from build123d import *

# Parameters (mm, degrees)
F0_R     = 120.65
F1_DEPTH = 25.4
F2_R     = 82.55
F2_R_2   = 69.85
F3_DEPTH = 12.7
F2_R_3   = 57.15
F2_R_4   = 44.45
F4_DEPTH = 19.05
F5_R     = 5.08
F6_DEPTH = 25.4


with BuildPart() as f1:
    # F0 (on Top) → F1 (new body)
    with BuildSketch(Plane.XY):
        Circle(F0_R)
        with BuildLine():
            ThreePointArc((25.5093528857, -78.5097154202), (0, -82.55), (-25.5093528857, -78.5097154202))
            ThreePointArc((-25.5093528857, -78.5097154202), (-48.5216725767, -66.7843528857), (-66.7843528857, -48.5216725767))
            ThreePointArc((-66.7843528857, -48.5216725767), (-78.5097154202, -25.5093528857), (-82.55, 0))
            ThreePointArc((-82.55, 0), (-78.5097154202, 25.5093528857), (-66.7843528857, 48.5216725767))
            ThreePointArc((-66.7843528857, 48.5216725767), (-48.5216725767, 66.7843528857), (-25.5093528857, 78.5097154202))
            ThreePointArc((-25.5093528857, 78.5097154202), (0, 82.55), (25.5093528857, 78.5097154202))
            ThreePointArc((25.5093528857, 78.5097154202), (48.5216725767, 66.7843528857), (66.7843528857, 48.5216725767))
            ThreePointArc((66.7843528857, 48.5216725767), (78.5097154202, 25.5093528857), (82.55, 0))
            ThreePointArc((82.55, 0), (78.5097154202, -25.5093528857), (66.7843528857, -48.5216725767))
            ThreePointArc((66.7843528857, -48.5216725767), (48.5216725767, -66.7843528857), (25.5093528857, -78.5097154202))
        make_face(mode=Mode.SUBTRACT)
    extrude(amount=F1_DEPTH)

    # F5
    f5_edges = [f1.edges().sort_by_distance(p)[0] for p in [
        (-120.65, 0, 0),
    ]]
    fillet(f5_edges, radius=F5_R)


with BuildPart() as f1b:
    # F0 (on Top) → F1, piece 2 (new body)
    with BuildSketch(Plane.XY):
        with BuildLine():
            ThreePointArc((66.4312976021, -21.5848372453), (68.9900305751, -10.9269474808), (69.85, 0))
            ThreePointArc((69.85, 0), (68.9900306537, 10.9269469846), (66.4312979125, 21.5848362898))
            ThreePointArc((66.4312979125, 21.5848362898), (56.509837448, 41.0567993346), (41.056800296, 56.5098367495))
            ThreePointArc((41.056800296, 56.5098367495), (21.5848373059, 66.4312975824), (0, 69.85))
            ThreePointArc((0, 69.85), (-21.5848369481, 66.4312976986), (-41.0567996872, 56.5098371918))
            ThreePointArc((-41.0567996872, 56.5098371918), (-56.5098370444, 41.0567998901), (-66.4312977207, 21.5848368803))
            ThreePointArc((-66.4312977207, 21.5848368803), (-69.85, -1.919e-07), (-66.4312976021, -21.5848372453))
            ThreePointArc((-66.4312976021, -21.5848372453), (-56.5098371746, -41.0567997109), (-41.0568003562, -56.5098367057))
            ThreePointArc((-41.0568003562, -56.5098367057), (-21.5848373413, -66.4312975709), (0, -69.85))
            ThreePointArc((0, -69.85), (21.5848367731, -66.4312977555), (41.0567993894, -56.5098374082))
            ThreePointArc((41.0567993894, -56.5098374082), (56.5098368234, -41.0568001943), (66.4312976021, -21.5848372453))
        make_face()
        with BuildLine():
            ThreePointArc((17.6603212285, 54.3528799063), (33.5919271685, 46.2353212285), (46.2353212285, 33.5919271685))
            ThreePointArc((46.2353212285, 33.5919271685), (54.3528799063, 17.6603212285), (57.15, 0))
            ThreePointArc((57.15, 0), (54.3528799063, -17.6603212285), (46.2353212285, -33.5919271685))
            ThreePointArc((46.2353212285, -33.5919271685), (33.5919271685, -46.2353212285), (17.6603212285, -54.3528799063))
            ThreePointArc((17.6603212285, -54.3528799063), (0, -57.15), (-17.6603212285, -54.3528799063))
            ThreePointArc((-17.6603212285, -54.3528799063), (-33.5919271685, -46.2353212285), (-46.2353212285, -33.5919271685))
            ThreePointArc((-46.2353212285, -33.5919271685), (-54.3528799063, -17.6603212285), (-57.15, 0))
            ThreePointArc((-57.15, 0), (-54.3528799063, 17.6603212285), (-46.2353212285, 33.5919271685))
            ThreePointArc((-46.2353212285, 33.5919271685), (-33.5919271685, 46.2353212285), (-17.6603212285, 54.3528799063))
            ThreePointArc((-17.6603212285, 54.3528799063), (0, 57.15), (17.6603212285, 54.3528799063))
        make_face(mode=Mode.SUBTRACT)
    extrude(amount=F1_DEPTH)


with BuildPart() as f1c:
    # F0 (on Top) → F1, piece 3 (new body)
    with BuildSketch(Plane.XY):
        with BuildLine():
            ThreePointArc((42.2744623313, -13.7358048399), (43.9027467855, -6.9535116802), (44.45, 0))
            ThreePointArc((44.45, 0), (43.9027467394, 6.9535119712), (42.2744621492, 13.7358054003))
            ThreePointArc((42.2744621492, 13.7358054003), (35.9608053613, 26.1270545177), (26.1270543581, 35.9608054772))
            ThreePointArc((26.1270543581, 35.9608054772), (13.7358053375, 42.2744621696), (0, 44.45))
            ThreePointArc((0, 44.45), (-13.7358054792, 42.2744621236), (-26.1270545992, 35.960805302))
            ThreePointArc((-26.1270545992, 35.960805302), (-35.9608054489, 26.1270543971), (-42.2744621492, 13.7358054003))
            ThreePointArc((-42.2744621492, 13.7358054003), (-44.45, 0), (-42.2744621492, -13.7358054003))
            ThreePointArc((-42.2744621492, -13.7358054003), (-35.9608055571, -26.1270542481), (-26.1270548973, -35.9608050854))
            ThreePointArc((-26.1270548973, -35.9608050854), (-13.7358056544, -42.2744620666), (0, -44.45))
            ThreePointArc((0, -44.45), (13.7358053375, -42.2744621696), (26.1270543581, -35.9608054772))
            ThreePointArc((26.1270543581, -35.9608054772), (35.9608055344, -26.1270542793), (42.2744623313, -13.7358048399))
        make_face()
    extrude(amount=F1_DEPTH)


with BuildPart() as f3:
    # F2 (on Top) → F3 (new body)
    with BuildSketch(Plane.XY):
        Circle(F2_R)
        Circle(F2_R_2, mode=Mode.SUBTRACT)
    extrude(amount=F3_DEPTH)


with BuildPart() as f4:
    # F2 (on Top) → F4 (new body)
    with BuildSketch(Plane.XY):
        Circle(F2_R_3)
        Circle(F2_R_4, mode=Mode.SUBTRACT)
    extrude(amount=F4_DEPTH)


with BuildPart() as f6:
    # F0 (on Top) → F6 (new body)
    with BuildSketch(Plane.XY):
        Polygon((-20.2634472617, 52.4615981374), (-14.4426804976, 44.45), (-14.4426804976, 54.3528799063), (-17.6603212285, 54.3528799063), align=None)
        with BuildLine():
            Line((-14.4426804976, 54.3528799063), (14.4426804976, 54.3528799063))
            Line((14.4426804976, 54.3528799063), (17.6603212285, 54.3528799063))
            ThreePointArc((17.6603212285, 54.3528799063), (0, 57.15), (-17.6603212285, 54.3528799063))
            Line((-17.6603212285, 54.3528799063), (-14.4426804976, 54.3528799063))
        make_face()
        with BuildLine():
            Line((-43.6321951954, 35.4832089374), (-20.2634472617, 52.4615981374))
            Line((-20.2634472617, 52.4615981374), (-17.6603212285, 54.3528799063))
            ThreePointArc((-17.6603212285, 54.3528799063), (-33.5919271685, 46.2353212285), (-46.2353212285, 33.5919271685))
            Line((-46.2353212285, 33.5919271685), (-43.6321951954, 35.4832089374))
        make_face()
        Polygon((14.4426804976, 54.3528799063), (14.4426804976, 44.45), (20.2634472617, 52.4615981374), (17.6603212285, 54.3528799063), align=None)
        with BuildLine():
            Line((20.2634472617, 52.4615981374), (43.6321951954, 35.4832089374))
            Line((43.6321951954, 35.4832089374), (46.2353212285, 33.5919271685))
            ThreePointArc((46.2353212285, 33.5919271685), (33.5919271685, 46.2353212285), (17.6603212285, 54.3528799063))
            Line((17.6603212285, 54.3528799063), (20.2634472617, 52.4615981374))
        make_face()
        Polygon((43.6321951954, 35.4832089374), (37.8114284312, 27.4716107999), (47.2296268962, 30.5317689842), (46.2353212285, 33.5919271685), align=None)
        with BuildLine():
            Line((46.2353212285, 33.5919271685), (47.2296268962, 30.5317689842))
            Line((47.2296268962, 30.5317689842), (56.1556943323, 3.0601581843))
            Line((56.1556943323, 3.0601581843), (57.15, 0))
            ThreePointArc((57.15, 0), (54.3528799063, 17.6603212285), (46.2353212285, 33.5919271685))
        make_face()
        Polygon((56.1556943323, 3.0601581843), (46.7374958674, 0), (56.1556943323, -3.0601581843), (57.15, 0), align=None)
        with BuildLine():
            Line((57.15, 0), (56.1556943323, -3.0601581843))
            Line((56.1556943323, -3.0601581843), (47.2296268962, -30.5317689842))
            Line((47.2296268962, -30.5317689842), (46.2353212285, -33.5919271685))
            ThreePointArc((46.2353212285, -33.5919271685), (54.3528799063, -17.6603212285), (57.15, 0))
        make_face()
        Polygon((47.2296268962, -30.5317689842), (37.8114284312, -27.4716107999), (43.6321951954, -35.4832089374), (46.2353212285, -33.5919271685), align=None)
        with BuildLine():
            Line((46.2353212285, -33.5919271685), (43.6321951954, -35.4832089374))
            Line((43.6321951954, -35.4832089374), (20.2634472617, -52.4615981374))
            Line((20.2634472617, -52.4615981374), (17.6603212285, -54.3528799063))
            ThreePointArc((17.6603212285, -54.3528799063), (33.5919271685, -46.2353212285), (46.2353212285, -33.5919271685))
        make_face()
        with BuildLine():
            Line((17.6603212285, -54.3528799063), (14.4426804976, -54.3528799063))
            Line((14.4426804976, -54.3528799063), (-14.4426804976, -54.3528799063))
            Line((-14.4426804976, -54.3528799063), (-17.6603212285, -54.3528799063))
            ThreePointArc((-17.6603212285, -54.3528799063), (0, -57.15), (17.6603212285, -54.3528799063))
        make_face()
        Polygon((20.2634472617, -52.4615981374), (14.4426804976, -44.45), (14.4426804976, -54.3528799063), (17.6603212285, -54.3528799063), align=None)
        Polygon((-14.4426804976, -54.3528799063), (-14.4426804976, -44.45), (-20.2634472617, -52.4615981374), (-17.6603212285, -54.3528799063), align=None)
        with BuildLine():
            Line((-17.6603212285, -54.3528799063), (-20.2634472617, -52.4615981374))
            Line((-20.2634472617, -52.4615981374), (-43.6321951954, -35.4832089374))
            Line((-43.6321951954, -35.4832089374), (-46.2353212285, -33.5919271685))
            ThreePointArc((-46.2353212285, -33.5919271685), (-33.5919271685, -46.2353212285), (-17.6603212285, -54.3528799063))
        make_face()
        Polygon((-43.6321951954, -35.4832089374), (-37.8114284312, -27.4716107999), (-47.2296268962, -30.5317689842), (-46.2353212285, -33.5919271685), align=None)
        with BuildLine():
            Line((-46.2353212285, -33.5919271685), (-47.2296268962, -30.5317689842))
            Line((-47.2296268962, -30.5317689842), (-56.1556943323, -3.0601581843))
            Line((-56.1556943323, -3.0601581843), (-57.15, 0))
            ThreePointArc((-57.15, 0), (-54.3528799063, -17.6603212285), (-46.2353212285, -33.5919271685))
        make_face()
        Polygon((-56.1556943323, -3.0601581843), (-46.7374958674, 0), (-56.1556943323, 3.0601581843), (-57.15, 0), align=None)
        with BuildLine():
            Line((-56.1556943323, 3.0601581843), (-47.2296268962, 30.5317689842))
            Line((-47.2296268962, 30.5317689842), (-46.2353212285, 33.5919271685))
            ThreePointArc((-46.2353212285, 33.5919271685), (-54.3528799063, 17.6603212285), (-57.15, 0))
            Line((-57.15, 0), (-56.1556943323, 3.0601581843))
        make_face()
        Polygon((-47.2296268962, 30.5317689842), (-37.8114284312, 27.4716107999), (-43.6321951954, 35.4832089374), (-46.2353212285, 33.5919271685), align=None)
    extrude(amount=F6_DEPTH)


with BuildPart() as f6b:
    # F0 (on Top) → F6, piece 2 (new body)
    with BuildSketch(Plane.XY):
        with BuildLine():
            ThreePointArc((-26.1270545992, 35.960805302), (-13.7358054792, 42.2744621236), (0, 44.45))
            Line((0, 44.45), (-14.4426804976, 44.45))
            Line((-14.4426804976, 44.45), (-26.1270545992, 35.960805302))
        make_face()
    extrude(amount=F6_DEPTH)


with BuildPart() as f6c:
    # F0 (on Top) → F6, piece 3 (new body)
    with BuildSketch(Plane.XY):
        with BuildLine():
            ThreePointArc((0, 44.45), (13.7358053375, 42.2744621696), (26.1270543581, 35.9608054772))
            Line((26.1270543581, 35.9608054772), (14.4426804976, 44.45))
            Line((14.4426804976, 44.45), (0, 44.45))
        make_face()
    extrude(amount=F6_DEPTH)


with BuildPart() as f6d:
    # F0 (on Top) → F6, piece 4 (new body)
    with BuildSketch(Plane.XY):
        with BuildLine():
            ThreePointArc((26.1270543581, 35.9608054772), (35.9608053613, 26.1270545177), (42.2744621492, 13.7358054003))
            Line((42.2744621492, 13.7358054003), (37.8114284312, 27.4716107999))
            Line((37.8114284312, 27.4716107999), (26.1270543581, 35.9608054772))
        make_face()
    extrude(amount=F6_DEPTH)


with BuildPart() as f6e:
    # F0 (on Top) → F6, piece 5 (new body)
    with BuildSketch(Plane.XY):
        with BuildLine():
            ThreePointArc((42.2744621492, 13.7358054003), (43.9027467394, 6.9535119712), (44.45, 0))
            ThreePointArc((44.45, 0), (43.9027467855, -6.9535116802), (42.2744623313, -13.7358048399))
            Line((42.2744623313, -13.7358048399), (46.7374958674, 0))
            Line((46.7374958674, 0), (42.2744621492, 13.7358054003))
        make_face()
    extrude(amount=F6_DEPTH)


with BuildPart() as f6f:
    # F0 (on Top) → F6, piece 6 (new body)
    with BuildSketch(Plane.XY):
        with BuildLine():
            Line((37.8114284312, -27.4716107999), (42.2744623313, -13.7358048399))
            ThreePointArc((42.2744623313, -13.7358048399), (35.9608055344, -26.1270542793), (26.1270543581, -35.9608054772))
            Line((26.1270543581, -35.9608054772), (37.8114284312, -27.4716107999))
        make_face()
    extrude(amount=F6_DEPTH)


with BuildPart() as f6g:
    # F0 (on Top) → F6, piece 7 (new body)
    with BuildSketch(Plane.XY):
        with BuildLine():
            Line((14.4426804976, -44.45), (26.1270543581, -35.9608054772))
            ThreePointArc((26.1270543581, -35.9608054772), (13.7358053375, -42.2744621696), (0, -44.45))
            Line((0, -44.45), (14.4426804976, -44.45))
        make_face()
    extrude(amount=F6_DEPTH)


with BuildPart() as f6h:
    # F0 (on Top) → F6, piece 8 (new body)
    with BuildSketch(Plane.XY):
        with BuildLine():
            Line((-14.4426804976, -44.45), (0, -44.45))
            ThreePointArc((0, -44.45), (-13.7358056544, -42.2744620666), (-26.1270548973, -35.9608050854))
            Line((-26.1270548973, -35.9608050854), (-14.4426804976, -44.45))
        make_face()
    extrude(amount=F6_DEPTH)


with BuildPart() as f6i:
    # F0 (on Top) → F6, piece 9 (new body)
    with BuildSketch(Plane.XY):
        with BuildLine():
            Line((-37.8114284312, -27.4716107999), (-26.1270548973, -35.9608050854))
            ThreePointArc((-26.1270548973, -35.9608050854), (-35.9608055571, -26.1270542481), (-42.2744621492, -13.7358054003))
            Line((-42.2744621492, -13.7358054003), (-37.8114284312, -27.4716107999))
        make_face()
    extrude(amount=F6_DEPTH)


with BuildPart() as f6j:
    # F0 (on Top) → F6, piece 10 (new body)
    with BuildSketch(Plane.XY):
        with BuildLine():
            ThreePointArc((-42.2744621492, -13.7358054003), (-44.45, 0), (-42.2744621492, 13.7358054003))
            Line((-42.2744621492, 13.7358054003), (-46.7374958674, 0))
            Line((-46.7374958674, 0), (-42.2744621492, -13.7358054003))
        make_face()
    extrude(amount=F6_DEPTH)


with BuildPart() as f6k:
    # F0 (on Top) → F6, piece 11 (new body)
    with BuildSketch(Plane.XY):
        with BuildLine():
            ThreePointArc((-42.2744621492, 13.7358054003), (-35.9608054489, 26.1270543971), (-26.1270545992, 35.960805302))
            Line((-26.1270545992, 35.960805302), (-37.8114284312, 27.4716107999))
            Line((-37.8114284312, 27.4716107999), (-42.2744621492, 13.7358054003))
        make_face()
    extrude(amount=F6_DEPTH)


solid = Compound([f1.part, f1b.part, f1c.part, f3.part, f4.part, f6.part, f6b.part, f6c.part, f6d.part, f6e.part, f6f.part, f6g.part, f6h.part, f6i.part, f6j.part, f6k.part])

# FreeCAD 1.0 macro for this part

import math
import FreeCAD as App
import Part
import Sketcher
from FreeCAD import Vector
Q = App.Units.Quantity


def edges_at(feature, points):
    """Names of the edges that pass closest to the given points."""
    edges = feature.Shape.Edges
    near = lambda p: min(range(len(edges)), key=lambda i: edges[i].distToShape(Part.Vertex(*p))[0])
    return sorted({f"Edge{near(p) + 1}" for p in points})


def add_polygon(sketch, points):
    """Adds a closed chain of lines whose ends are joined by coincident constraints."""
    first, n = sketch.GeometryCount, len(points)
    for a, b in zip(points, points[1:] + points[:1]):
        sketch.addGeometry(Part.LineSegment(App.Vector(*a, 0), App.Vector(*b, 0)), False)
    for i in range(n):
        sketch.addConstraint(Sketcher.Constraint("Coincident", first + i, 2, first + (i + 1) % n, 1))

doc = App.newDocument("Part")
params = doc.addObject("Spreadsheet::Sheet", "Params")
for row, (alias, value) in enumerate([
    ("sketch1_diameter", "9.5 in"),
    ("sketch1_radius", "3.25 in"),
    ("pad1_length", "1 in"),
    ("fillet_radius", "0.2 in"),
    ("sketch2_radius", "2.75 in"),
    ("sketch2_radius2", "2.25 in"),
    ("pad2_length", "1 in"),
    ("sketch3_radius", "1.75 in"),
    ("pad3_length", "1 in"),
    ("sketch4_diameter", "6.5 in"),
    ("sketch4_diameter2", "5.5 in"),
    ("pad4_length", "0.5 in"),
    ("sketch5_diameter", "4.5 in"),
    ("sketch5_diameter2", "3.5 in"),
    ("pad5_length", "0.75 in"),
    ("sketch6_radius", "2.25 in"),
    ("pad6_length", "1 in"),
    ("sketch7_radius", "1.75 in"),
    ("pad7_length", "1 in"),
    ("sketch8_radius", "1.75 in"),
    ("pad8_length", "1 in"),
    ("sketch9_radius", "1.75 in"),
    ("pad9_length", "1 in"),
    ("sketch10_radius", "1.75 in"),
    ("pad10_length", "1 in"),
    ("sketch11_radius", "1.75 in"),
    ("pad11_length", "1 in"),
    ("sketch12_radius", "1.75 in"),
    ("pad12_length", "1 in"),
    ("sketch13_radius", "1.75 in"),
    ("pad13_length", "1 in"),
    ("sketch14_radius", "1.75 in"),
    ("pad14_length", "1 in"),
    ("sketch15_radius", "1.75 in"),
    ("pad15_length", "1 in"),
    ("sketch16_radius", "1.75 in"),
    ("pad16_length", "1 in"),
], start=1):
    params.set(f"A{row}", alias)
    params.set(f"B{row}", "=" + value)
    params.setAlias(f"B{row}", alias)

body = doc.addObject("PartDesign::Body", "Body")

# Sketch on XY plane
sketch1 = doc.addObject("Sketcher::SketchObject", "Sketch")
body.addObject(sketch1)
sketch1.AttachmentSupport = (doc.XY_Plane, [""])
sketch1.MapMode = "FlatFace"
sketch1.addGeometry(Part.Circle(Vector(0, 0, 0), Vector(0, 0, 1), 121), False)
sketch1.addGeometry(Part.ArcOfCircle(Part.Circle(Vector(0, 0, 0), Vector(0, 0, 1), 83), math.radians(-72), math.radians(-36)), False)
sketch1.addGeometry(Part.ArcOfCircle(Part.Circle(Vector(0, 0, 0), Vector(0, 0, 1), 83), math.radians(-108), math.radians(-72)), False)
sketch1.addGeometry(Part.ArcOfCircle(Part.Circle(Vector(0, 0, 0), Vector(0, 0, 1), 83), math.radians(-144), math.radians(-108)), False)
sketch1.addGeometry(Part.ArcOfCircle(Part.Circle(Vector(0, 0, 0), Vector(0, 0, 1), 83), math.radians(180), math.radians(216)), False)
sketch1.addGeometry(Part.ArcOfCircle(Part.Circle(Vector(0, 0, 0), Vector(0, 0, 1), 83), math.radians(144), math.radians(180)), False)
sketch1.addGeometry(Part.ArcOfCircle(Part.Circle(Vector(0, 0, 0), Vector(0, 0, 1), 83), math.radians(108), math.radians(144)), False)
sketch1.addGeometry(Part.ArcOfCircle(Part.Circle(Vector(0, 0, 0), Vector(0, 0, 1), 83), math.radians(72), math.radians(108)), False)
sketch1.addGeometry(Part.ArcOfCircle(Part.Circle(Vector(0, 0, 0), Vector(0, 0, 1), 83), math.radians(36), math.radians(72)), False)
sketch1.addGeometry(Part.ArcOfCircle(Part.Circle(Vector(0, 0, 0), Vector(0, 0, 1), 83), math.radians(0), math.radians(36)), False)
sketch1.addGeometry(Part.ArcOfCircle(Part.Circle(Vector(0, 0, 0), Vector(0, 0, 1), 83), math.radians(-36), math.radians(0)), False)
sketch1.addConstraint(Sketcher.Constraint("Tangent", 1, 1, 2, 2))
sketch1.addConstraint(Sketcher.Constraint("Tangent", 2, 1, 3, 2))
sketch1.addConstraint(Sketcher.Constraint("Tangent", 3, 1, 4, 2))
sketch1.addConstraint(Sketcher.Constraint("Tangent", 4, 1, 5, 2))
sketch1.addConstraint(Sketcher.Constraint("Tangent", 5, 1, 6, 2))
sketch1.addConstraint(Sketcher.Constraint("Tangent", 6, 1, 7, 2))
sketch1.addConstraint(Sketcher.Constraint("Tangent", 7, 1, 8, 2))
sketch1.addConstraint(Sketcher.Constraint("Tangent", 8, 1, 9, 2))
sketch1.addConstraint(Sketcher.Constraint("Tangent", 9, 1, 10, 2))
sketch1.addConstraint(Sketcher.Constraint("Tangent", 10, 1, 1, 2))
sketch1.addConstraint(Sketcher.Constraint("Coincident", 0, 3, -1, 1))
sketch1.addConstraint(Sketcher.Constraint("Coincident", 1, 3, -1, 1))
sketch1.addConstraint(Sketcher.Constraint("Coincident", 3, 3, -1, 1))
sketch1.addConstraint(Sketcher.Constraint("Coincident", 5, 3, -1, 1))
sketch1.addConstraint(Sketcher.Constraint("Coincident", 7, 3, -1, 1))
sketch1.addConstraint(Sketcher.Constraint("Equal", 7, 8))
sketch1.addConstraint(Sketcher.Constraint("PointOnObject", 4, 1, -1))
sketch1.addConstraint(Sketcher.Constraint("PointOnObject", 9, 1, -1))
sketch1.addConstraint(Sketcher.Constraint("Horizontal", 1, 1, 2, 1))
sketch1.addConstraint(Sketcher.Constraint("Horizontal", 6, 1, 7, 1))
sketch1.addConstraint(Sketcher.Constraint("Horizontal", 5, 1, 8, 1))
sketch1.addConstraint(Sketcher.Constraint("Horizontal", 3, 1, 10, 1))
sketch1.addConstraint(Sketcher.Constraint("Vertical", 3, 1, 5, 1))
sketch1.addConstraint(Sketcher.Constraint("Vertical", 2, 1, 6, 1))
sketch1.addConstraint(Sketcher.Constraint("Diameter", 0, Q("9.5 in")))
sketch1.addConstraint(Sketcher.Constraint("Radius", 1, Q("3.25 in")))
sketch1.addConstraint(Sketcher.Constraint("DistanceX", 3, 1, 2, 1, Q("1.625 in")))
sketch1.addConstraint(Sketcher.Constraint("DistanceX", -1, 1, 1, 1, Q("25.509353 mm")))
sketch1.setExpression("Constraints[24]", "Params.sketch1_diameter")
sketch1.setExpression("Constraints[25]", "Params.sketch1_radius")
pad1 = doc.addObject("PartDesign::Pad", "Pad")
body.addObject(pad1)
pad1.Profile = sketch1
pad1.setExpression("Length", "Params.pad1_length")
doc.recompute()

fillet = doc.addObject("PartDesign::Fillet", "Fillet")
body.addObject(fillet)
fillet.Base = (pad1, edges_at(pad1, [(-120.65, 0, 0)]))
fillet.setExpression("Radius", "Params.fillet_radius")
body2 = doc.addObject("PartDesign::Body", "Body001")

# Sketch on XY plane
sketch2 = doc.addObject("Sketcher::SketchObject", "Sketch001")
body2.addObject(sketch2)
sketch2.AttachmentSupport = (doc.getObject("XY_Plane001"), [""])
sketch2.MapMode = "FlatFace"
sketch2.addGeometry(Part.ArcOfCircle(Part.Circle(Vector(0, 0, 0), Vector(0, 0, 1), 70), math.radians(-18), math.radians(0)), False)
sketch2.addGeometry(Part.ArcOfCircle(Part.Circle(Vector(0, 0, 0), Vector(0, 0, 1), 70), math.radians(0), math.radians(18)), False)
sketch2.addGeometry(Part.ArcOfCircle(Part.Circle(Vector(0, 0, 0), Vector(0, 0, 1), 70), math.radians(18), math.radians(54)), False)
sketch2.addGeometry(Part.ArcOfCircle(Part.Circle(Vector(0, 0, 0), Vector(0, 0, 1), 70), math.radians(54), math.radians(126)), False)
sketch2.addGeometry(Part.ArcOfCircle(Part.Circle(Vector(0, 0, 0), Vector(0, 0, 1), 70), math.radians(126), math.radians(162)), False)
sketch2.addGeometry(Part.ArcOfCircle(Part.Circle(Vector(0, 0, 0), Vector(0, 0, 1), 70), math.radians(162), math.radians(198)), False)
sketch2.addGeometry(Part.ArcOfCircle(Part.Circle(Vector(0, 0, 0), Vector(0, 0, 1), 70), math.radians(-162), math.radians(-126)), False)
sketch2.addGeometry(Part.ArcOfCircle(Part.Circle(Vector(0, 0, 0), Vector(0, 0, 1), 70), math.radians(-126), math.radians(-90)), False)
sketch2.addGeometry(Part.ArcOfCircle(Part.Circle(Vector(0, 0, 0), Vector(0, 0, 1), 70), math.radians(-90), math.radians(-54)), False)
sketch2.addGeometry(Part.ArcOfCircle(Part.Circle(Vector(0, 0, 0), Vector(0, 0, 1), 70), math.radians(-54), math.radians(-18)), False)
sketch2.addGeometry(Part.ArcOfCircle(Part.Circle(Vector(0, 0, 0), Vector(0, 0, 1), 57), math.radians(72), math.radians(108)), False)
sketch2.addGeometry(Part.ArcOfCircle(Part.Circle(Vector(0, 0, 0), Vector(0, 0, 1), 57), math.radians(36), math.radians(72)), False)
sketch2.addGeometry(Part.ArcOfCircle(Part.Circle(Vector(0, 0, 0), Vector(0, 0, 1), 57), math.radians(0), math.radians(36)), False)
sketch2.addGeometry(Part.ArcOfCircle(Part.Circle(Vector(0, 0, 0), Vector(0, 0, 1), 57), math.radians(-36), math.radians(0)), False)
sketch2.addGeometry(Part.ArcOfCircle(Part.Circle(Vector(0, 0, 0), Vector(0, 0, 1), 57), math.radians(-72), math.radians(-36)), False)
sketch2.addGeometry(Part.ArcOfCircle(Part.Circle(Vector(0, 0, 0), Vector(0, 0, 1), 57), math.radians(-108), math.radians(-72)), False)
sketch2.addGeometry(Part.ArcOfCircle(Part.Circle(Vector(0, 0, 0), Vector(0, 0, 1), 57), math.radians(-144), math.radians(-108)), False)
sketch2.addGeometry(Part.ArcOfCircle(Part.Circle(Vector(0, 0, 0), Vector(0, 0, 1), 57), math.radians(180), math.radians(216)), False)
sketch2.addGeometry(Part.ArcOfCircle(Part.Circle(Vector(0, 0, 0), Vector(0, 0, 1), 57), math.radians(144), math.radians(180)), False)
sketch2.addGeometry(Part.ArcOfCircle(Part.Circle(Vector(0, 0, 0), Vector(0, 0, 1), 57), math.radians(108), math.radians(144)), False)
sketch2.addConstraint(Sketcher.Constraint("Tangent", 0, 2, 1, 1))
sketch2.addConstraint(Sketcher.Constraint("Tangent", 1, 2, 2, 1))
sketch2.addConstraint(Sketcher.Constraint("Tangent", 2, 2, 3, 1))
sketch2.addConstraint(Sketcher.Constraint("Tangent", 3, 2, 4, 1))
sketch2.addConstraint(Sketcher.Constraint("Tangent", 4, 2, 5, 1))
sketch2.addConstraint(Sketcher.Constraint("Tangent", 5, 2, 6, 1))
sketch2.addConstraint(Sketcher.Constraint("Tangent", 6, 2, 7, 1))
sketch2.addConstraint(Sketcher.Constraint("Tangent", 7, 2, 8, 1))
sketch2.addConstraint(Sketcher.Constraint("Tangent", 8, 2, 9, 1))
sketch2.addConstraint(Sketcher.Constraint("Tangent", 9, 2, 0, 1))
sketch2.addConstraint(Sketcher.Constraint("Tangent", 10, 1, 11, 2))
sketch2.addConstraint(Sketcher.Constraint("Tangent", 11, 1, 12, 2))
sketch2.addConstraint(Sketcher.Constraint("Tangent", 12, 1, 13, 2))
sketch2.addConstraint(Sketcher.Constraint("Tangent", 13, 1, 14, 2))
sketch2.addConstraint(Sketcher.Constraint("Tangent", 14, 1, 15, 2))
sketch2.addConstraint(Sketcher.Constraint("Tangent", 15, 1, 16, 2))
sketch2.addConstraint(Sketcher.Constraint("Tangent", 16, 1, 17, 2))
sketch2.addConstraint(Sketcher.Constraint("Tangent", 17, 1, 18, 2))
sketch2.addConstraint(Sketcher.Constraint("Tangent", 18, 1, 19, 2))
sketch2.addConstraint(Sketcher.Constraint("Tangent", 19, 1, 10, 2))
sketch2.addConstraint(Sketcher.Constraint("Coincident", 0, 3, -1, 1))
sketch2.addConstraint(Sketcher.Constraint("Coincident", 2, 3, -1, 1))
sketch2.addConstraint(Sketcher.Constraint("Coincident", 4, 3, -1, 1))
sketch2.addConstraint(Sketcher.Constraint("Coincident", 6, 3, -1, 1))
sketch2.addConstraint(Sketcher.Constraint("Coincident", 10, 3, -1, 1))
sketch2.addConstraint(Sketcher.Constraint("Coincident", 12, 3, -1, 1))
sketch2.addConstraint(Sketcher.Constraint("Coincident", 14, 3, -1, 1))
sketch2.addConstraint(Sketcher.Constraint("Coincident", 16, 3, -1, 1))
sketch2.addConstraint(Sketcher.Constraint("Equal", 6, 7))
sketch2.addConstraint(Sketcher.Constraint("Equal", 16, 17))
sketch2.addConstraint(Sketcher.Constraint("PointOnObject", 0, 2, -1))
sketch2.addConstraint(Sketcher.Constraint("PointOnObject", 7, 2, -2))
sketch2.addConstraint(Sketcher.Constraint("PointOnObject", 12, 1, -1))
sketch2.addConstraint(Sketcher.Constraint("PointOnObject", 17, 1, -1))
sketch2.addConstraint(Sketcher.Constraint("Horizontal", 2, 2, 3, 2))
sketch2.addConstraint(Sketcher.Constraint("Horizontal", 1, 2, 4, 2))
sketch2.addConstraint(Sketcher.Constraint("Horizontal", 6, 2, 8, 2))
sketch2.addConstraint(Sketcher.Constraint("Horizontal", 5, 2, 9, 2))
sketch2.addConstraint(Sketcher.Constraint("Horizontal", 14, 1, 15, 1))
sketch2.addConstraint(Sketcher.Constraint("Horizontal", 13, 1, 16, 1))
sketch2.addConstraint(Sketcher.Constraint("Horizontal", 11, 1, 18, 1))
sketch2.addConstraint(Sketcher.Constraint("Horizontal", 10, 1, 19, 1))
sketch2.addConstraint(Sketcher.Constraint("Vertical", 4, 2, 5, 2))
sketch2.addConstraint(Sketcher.Constraint("Vertical", 3, 2, 6, 2))
sketch2.addConstraint(Sketcher.Constraint("Vertical", 11, 1, 13, 1))
sketch2.addConstraint(Sketcher.Constraint("Vertical", 10, 1, 14, 1))
sketch2.addConstraint(Sketcher.Constraint("Radius", 0, Q("2.75 in")))
sketch2.addConstraint(Sketcher.Constraint("Radius", 10, Q("2.25 in")))
sketch2.addConstraint(Sketcher.Constraint("DistanceY", 1, 2, 2, 2, Q("1.375 in")))
sketch2.addConstraint(Sketcher.Constraint("DistanceX", 10, 1, 11, 1, Q("1.125 in")))
sketch2.addConstraint(Sketcher.Constraint("DistanceX", -1, 1, 2, 2, Q("41.0568 mm")))
sketch2.addConstraint(Sketcher.Constraint("DistanceX", -1, 1, 10, 1, Q("17.660321 mm")))
sketch2.setExpression("Constraints[46]", "Params.sketch2_radius")
sketch2.setExpression("Constraints[47]", "Params.sketch2_radius2")
pad2 = doc.addObject("PartDesign::Pad", "Pad001")
body2.addObject(pad2)
pad2.Profile = sketch2
pad2.setExpression("Length", "Params.pad2_length")
body3 = doc.addObject("PartDesign::Body", "Body002")

# Sketch on XY plane
sketch3 = doc.addObject("Sketcher::SketchObject", "Sketch002")
body3.addObject(sketch3)
sketch3.AttachmentSupport = (doc.getObject("XY_Plane002"), [""])
sketch3.MapMode = "FlatFace"
sketch3.addGeometry(Part.ArcOfCircle(Part.Circle(Vector(0, 0, 0), Vector(0, 0, 1), 44), math.radians(-18), math.radians(0)), False)
sketch3.addGeometry(Part.ArcOfCircle(Part.Circle(Vector(0, 0, 0), Vector(0, 0, 1), 44), math.radians(0), math.radians(18)), False)
sketch3.addGeometry(Part.ArcOfCircle(Part.Circle(Vector(0, 0, 0), Vector(0, 0, 1), 44), math.radians(18), math.radians(54)), False)
sketch3.addGeometry(Part.ArcOfCircle(Part.Circle(Vector(0, 0, 0), Vector(0, 0, 1), 44), math.radians(54), math.radians(90)), False)
sketch3.addGeometry(Part.ArcOfCircle(Part.Circle(Vector(0, 0, 0), Vector(0, 0, 1), 44), math.radians(90), math.radians(126)), False)
sketch3.addGeometry(Part.ArcOfCircle(Part.Circle(Vector(0, 0, 0), Vector(0, 0, 1), 44), math.radians(126), math.radians(162)), False)
sketch3.addGeometry(Part.ArcOfCircle(Part.Circle(Vector(0, 0, 0), Vector(0, 0, 1), 44), math.radians(162), math.radians(198)), False)
sketch3.addGeometry(Part.ArcOfCircle(Part.Circle(Vector(0, 0, 0), Vector(0, 0, 1), 44), math.radians(-162), math.radians(-90)), False)
sketch3.addGeometry(Part.ArcOfCircle(Part.Circle(Vector(0, 0, 0), Vector(0, 0, 1), 44), math.radians(-90), math.radians(-54)), False)
sketch3.addGeometry(Part.ArcOfCircle(Part.Circle(Vector(0, 0, 0), Vector(0, 0, 1), 44), math.radians(-54), math.radians(-18)), False)
sketch3.addConstraint(Sketcher.Constraint("Tangent", 0, 2, 1, 1))
sketch3.addConstraint(Sketcher.Constraint("Tangent", 1, 2, 2, 1))
sketch3.addConstraint(Sketcher.Constraint("Tangent", 2, 2, 3, 1))
sketch3.addConstraint(Sketcher.Constraint("Tangent", 3, 2, 4, 1))
sketch3.addConstraint(Sketcher.Constraint("Tangent", 4, 2, 5, 1))
sketch3.addConstraint(Sketcher.Constraint("Tangent", 5, 2, 6, 1))
sketch3.addConstraint(Sketcher.Constraint("Tangent", 6, 2, 7, 1))
sketch3.addConstraint(Sketcher.Constraint("Tangent", 7, 2, 8, 1))
sketch3.addConstraint(Sketcher.Constraint("Tangent", 8, 2, 9, 1))
sketch3.addConstraint(Sketcher.Constraint("Tangent", 9, 2, 0, 1))
sketch3.addConstraint(Sketcher.Constraint("Coincident", 0, 3, -1, 1))
sketch3.addConstraint(Sketcher.Constraint("Coincident", 2, 3, -1, 1))
sketch3.addConstraint(Sketcher.Constraint("Coincident", 4, 3, -1, 1))
sketch3.addConstraint(Sketcher.Constraint("Coincident", 6, 3, -1, 1))
sketch3.addConstraint(Sketcher.Constraint("Equal", 6, 7))
sketch3.addConstraint(Sketcher.Constraint("PointOnObject", 0, 2, -1))
sketch3.addConstraint(Sketcher.Constraint("PointOnObject", 3, 2, -2))
sketch3.addConstraint(Sketcher.Constraint("PointOnObject", 7, 2, -2))
sketch3.addConstraint(Sketcher.Constraint("Horizontal", 2, 2, 4, 2))
sketch3.addConstraint(Sketcher.Constraint("Horizontal", 1, 2, 5, 2))
sketch3.addConstraint(Sketcher.Constraint("Horizontal", 6, 2, 9, 2))
sketch3.addConstraint(Sketcher.Constraint("Vertical", 5, 2, 6, 2))
sketch3.addConstraint(Sketcher.Constraint("Vertical", 2, 2, 8, 2))
sketch3.addConstraint(Sketcher.Constraint("Radius", 0, Q("1.75 in")))
sketch3.addConstraint(Sketcher.Constraint("DistanceY", 1, 2, 2, 2, Q("0.875 in")))
sketch3.addConstraint(Sketcher.Constraint("DistanceY", 6, 2, 5, 2, Q("27.471611 mm")))
sketch3.setExpression("Constraints[23]", "Params.sketch3_radius")
pad3 = doc.addObject("PartDesign::Pad", "Pad002")
body3.addObject(pad3)
pad3.Profile = sketch3
pad3.setExpression("Length", "Params.pad3_length")
body4 = doc.addObject("PartDesign::Body", "Body003")

# Sketch on XY plane
sketch4 = doc.addObject("Sketcher::SketchObject", "Sketch003")
body4.addObject(sketch4)
sketch4.AttachmentSupport = (doc.getObject("XY_Plane003"), [""])
sketch4.MapMode = "FlatFace"
sketch4.addGeometry(Part.Circle(Vector(0, 0, 0), Vector(0, 0, 1), 83), False)
sketch4.addGeometry(Part.Circle(Vector(0, 0, 0), Vector(0, 0, 1), 70), False)
sketch4.addConstraint(Sketcher.Constraint("Coincident", 0, 3, -1, 1))
sketch4.addConstraint(Sketcher.Constraint("Coincident", 1, 3, -1, 1))
sketch4.addConstraint(Sketcher.Constraint("Diameter", 0, Q("6.5 in")))
sketch4.addConstraint(Sketcher.Constraint("Diameter", 1, Q("5.5 in")))
sketch4.setExpression("Constraints[2]", "Params.sketch4_diameter")
sketch4.setExpression("Constraints[3]", "Params.sketch4_diameter2")
pad4 = doc.addObject("PartDesign::Pad", "Pad003")
body4.addObject(pad4)
pad4.Profile = sketch4
pad4.setExpression("Length", "Params.pad4_length")
body5 = doc.addObject("PartDesign::Body", "Body004")

# Sketch on XY plane
sketch5 = doc.addObject("Sketcher::SketchObject", "Sketch004")
body5.addObject(sketch5)
sketch5.AttachmentSupport = (doc.getObject("XY_Plane004"), [""])
sketch5.MapMode = "FlatFace"
sketch5.addGeometry(Part.Circle(Vector(0, 0, 0), Vector(0, 0, 1), 57), False)
sketch5.addGeometry(Part.Circle(Vector(0, 0, 0), Vector(0, 0, 1), 44), False)
sketch5.addConstraint(Sketcher.Constraint("Coincident", 0, 3, -1, 1))
sketch5.addConstraint(Sketcher.Constraint("Coincident", 1, 3, -1, 1))
sketch5.addConstraint(Sketcher.Constraint("Diameter", 0, Q("4.5 in")))
sketch5.addConstraint(Sketcher.Constraint("Diameter", 1, Q("3.5 in")))
sketch5.setExpression("Constraints[2]", "Params.sketch5_diameter")
sketch5.setExpression("Constraints[3]", "Params.sketch5_diameter2")
pad5 = doc.addObject("PartDesign::Pad", "Pad004")
body5.addObject(pad5)
pad5.Profile = sketch5
pad5.setExpression("Length", "Params.pad5_length")
body6 = doc.addObject("PartDesign::Body", "Body005")

# Sketch on XY plane
sketch6 = doc.addObject("Sketcher::SketchObject", "Sketch005")
body6.addObject(sketch6)
sketch6.AttachmentSupport = (doc.getObject("XY_Plane005"), [""])
sketch6.MapMode = "FlatFace"
sketch6.addGeometry(Part.ArcOfCircle(Part.Circle(Vector(0, 0, 0), Vector(0, 0, 1), 57), math.radians(108), math.radians(144)), False)  # 0
sketch6.addGeometry(Part.ArcOfCircle(Part.Circle(Vector(0, 0, 0), Vector(0, 0, 1), 57), math.radians(144), math.radians(180)), False)  # 1
sketch6.addGeometry(Part.ArcOfCircle(Part.Circle(Vector(0, 0, 0), Vector(0, 0, 1), 57), math.radians(180), math.radians(216)), False)  # 2
sketch6.addGeometry(Part.ArcOfCircle(Part.Circle(Vector(0, 0, 0), Vector(0, 0, 1), 57), math.radians(-144), math.radians(-108)), False)  # 3
sketch6.addGeometry(Part.ArcOfCircle(Part.Circle(Vector(0, 0, 0), Vector(0, 0, 1), 57), math.radians(-108), math.radians(-72)), False)  # 4
sketch6.addGeometry(Part.ArcOfCircle(Part.Circle(Vector(0, 0, 0), Vector(0, 0, 1), 57), math.radians(-72), math.radians(-36)), False)  # 5
sketch6.addGeometry(Part.ArcOfCircle(Part.Circle(Vector(0, 0, 0), Vector(0, 0, 1), 57), math.radians(-36), math.radians(0)), False)  # 6
sketch6.addGeometry(Part.ArcOfCircle(Part.Circle(Vector(0, 0, 0), Vector(0, 0, 1), 57), math.radians(0), math.radians(36)), False)  # 7
sketch6.addGeometry(Part.ArcOfCircle(Part.Circle(Vector(0, 0, 0), Vector(0, 0, 1), 57), math.radians(36), math.radians(72)), False)  # 8
sketch6.addGeometry(Part.ArcOfCircle(Part.Circle(Vector(0, 0, 0), Vector(0, 0, 1), 57), math.radians(72), math.radians(108)), False)  # 9
add_polygon(sketch6, [(-56, 3), (-47, 31), (-38, 27), (-44, 35), (-20, 52), (-14, 44), (-14, 54), (14, 54), (14, 44), (20, 52), (44, 35), (38, 27), (47, 31), (56, 3), (47, 0), (56, -3), (47, -31), (38, -27), (44, -35), (20, -52), (14, -44), (14, -54), (-14, -54), (-14, -44), (-20, -52), (-44, -35), (-38, -27), (-47, -31), (-56, -3), (-47, 0)])  # lines 10-39
sketch6.addConstraint(Sketcher.Constraint("Tangent", 0, 2, 1, 1))
sketch6.addConstraint(Sketcher.Constraint("Tangent", 1, 2, 2, 1))
sketch6.addConstraint(Sketcher.Constraint("Tangent", 2, 2, 3, 1))
sketch6.addConstraint(Sketcher.Constraint("Tangent", 3, 2, 4, 1))
sketch6.addConstraint(Sketcher.Constraint("Tangent", 4, 2, 5, 1))
sketch6.addConstraint(Sketcher.Constraint("Tangent", 5, 2, 6, 1))
sketch6.addConstraint(Sketcher.Constraint("Tangent", 6, 2, 7, 1))
sketch6.addConstraint(Sketcher.Constraint("Tangent", 7, 2, 8, 1))
sketch6.addConstraint(Sketcher.Constraint("Tangent", 8, 2, 9, 1))
sketch6.addConstraint(Sketcher.Constraint("Tangent", 9, 2, 0, 1))
sketch6.addConstraint(Sketcher.Constraint("Vertical", 15))
sketch6.addConstraint(Sketcher.Constraint("Horizontal", 16))
sketch6.addConstraint(Sketcher.Constraint("Vertical", 17))
sketch6.addConstraint(Sketcher.Constraint("Vertical", 30))
sketch6.addConstraint(Sketcher.Constraint("Horizontal", 31))
sketch6.addConstraint(Sketcher.Constraint("Vertical", 32))
sketch6.addConstraint(Sketcher.Constraint("Coincident", 0, 3, -1, 1))
sketch6.addConstraint(Sketcher.Constraint("Coincident", 2, 3, -1, 1))
sketch6.addConstraint(Sketcher.Constraint("Coincident", 4, 3, -1, 1))
sketch6.addConstraint(Sketcher.Constraint("Coincident", 6, 3, -1, 1))
sketch6.addConstraint(Sketcher.Constraint("Equal", 6, 7))
sketch6.addConstraint(Sketcher.Constraint("Symmetric", 10, 2, 25, 2, -1, 1))
sketch6.addConstraint(Sketcher.Constraint("Symmetric", 11, 2, 26, 2, -1, 1))
sketch6.addConstraint(Sketcher.Constraint("Symmetric", 12, 2, 27, 2, -1, 1))
sketch6.addConstraint(Sketcher.Constraint("Symmetric", 13, 2, 28, 2, -1, 1))
sketch6.addConstraint(Sketcher.Constraint("Symmetric", 14, 2, 29, 2, -1, 1))
sketch6.addConstraint(Sketcher.Constraint("Symmetric", 16, 2, 31, 2, -1, 1))
sketch6.addConstraint(Sketcher.Constraint("Symmetric", 18, 2, 33, 2, -1, 1))
sketch6.addConstraint(Sketcher.Constraint("Symmetric", 19, 2, 34, 2, -1, 1))
sketch6.addConstraint(Sketcher.Constraint("Symmetric", 20, 2, 35, 2, -1, 1))
sketch6.addConstraint(Sketcher.Constraint("Symmetric", 21, 2, 36, 2, -1, 1))
sketch6.addConstraint(Sketcher.Constraint("Symmetric", 22, 2, 37, 2, -1, 1))
sketch6.addConstraint(Sketcher.Constraint("Symmetric", 23, 2, 38, 2, -1, 1))
sketch6.addConstraint(Sketcher.Constraint("Symmetric", 24, 2, 39, 2, -1, 1))
sketch6.addConstraint(Sketcher.Constraint("Symmetric", 14, 2, 17, 2, -2))
sketch6.addConstraint(Sketcher.Constraint("Symmetric", 13, 2, 18, 2, -2))
sketch6.addConstraint(Sketcher.Constraint("Symmetric", 12, 2, 19, 2, -2))
sketch6.addConstraint(Sketcher.Constraint("Symmetric", 11, 2, 20, 2, -2))
sketch6.addConstraint(Sketcher.Constraint("Symmetric", 10, 2, 21, 2, -2))
sketch6.addConstraint(Sketcher.Constraint("Symmetric", 24, 2, 37, 2, -2))
sketch6.addConstraint(Sketcher.Constraint("PointOnObject", 1, 2, -1))
sketch6.addConstraint(Sketcher.Constraint("PointOnObject", 6, 2, -1))
sketch6.addConstraint(Sketcher.Constraint("PointOnObject", 23, 2, -1))
sketch6.addConstraint(Sketcher.Constraint("Perpendicular", 10, 11))
sketch6.addConstraint(Sketcher.Constraint("Perpendicular", 12, 13))
sketch6.addConstraint(Sketcher.Constraint("Perpendicular", 13, 14))
sketch6.addConstraint(Sketcher.Constraint("Perpendicular", 22, 23))
sketch6.addConstraint(Sketcher.Constraint("Parallel", 20, 33))
sketch6.addConstraint(Sketcher.Constraint("Horizontal", 3, 2, 4, 2))
sketch6.addConstraint(Sketcher.Constraint("Horizontal", 2, 2, 5, 2))
sketch6.addConstraint(Sketcher.Constraint("Horizontal", 0, 2, 7, 2))
sketch6.addConstraint(Sketcher.Constraint("Horizontal", 8, 2, 9, 2))
sketch6.addConstraint(Sketcher.Constraint("Horizontal", 9, 2, 15, 2))
sketch6.addConstraint(Sketcher.Constraint("Horizontal", 4, 2, 30, 2))
sketch6.addConstraint(Sketcher.Constraint("Vertical", 0, 2, 2, 2))
sketch6.addConstraint(Sketcher.Constraint("Equal", 11, 12))
sketch6.addConstraint(Sketcher.Constraint("Equal", 10, 13))
sketch6.addConstraint(Sketcher.Constraint("Equal", 12, 14))
sketch6.addConstraint(Sketcher.Constraint("Equal", 21, 23))
sketch6.addConstraint(Sketcher.Constraint("Radius", 0, Q("2.25 in")))
sketch6.addConstraint(Sketcher.Constraint("Angle", 10, Q("72 deg")))
sketch6.addConstraint(Sketcher.Constraint("Angle", 12, Q("126 deg")))
sketch6.addConstraint(Sketcher.Constraint("DistanceY", -1, 1, 14, 2, Q("1.75 in")))
sketch6.addConstraint(Sketcher.Constraint("DistanceX", 2, 2, 3, 2, Q("1.125 in")))
sketch6.addConstraint(Sketcher.Constraint("DistanceX", 16, 1, 16, 2, Q("28.885361 mm")))
sketch6.addConstraint(Sketcher.Constraint("DistanceY", 15, 1, 15, 2, Q("9.90288 mm")))
sketch6.addConstraint(Sketcher.Constraint("DistanceY", -1, 1, 13, 2, Q("52.461598 mm")))
sketch6.setExpression("Constraints[89]", "Params.sketch6_radius")
pad6 = doc.addObject("PartDesign::Pad", "Pad005")
body6.addObject(pad6)
pad6.Profile = sketch6
pad6.setExpression("Length", "Params.pad6_length")
body7 = doc.addObject("PartDesign::Body", "Body006")

# Sketch on XY plane
sketch7 = doc.addObject("Sketcher::SketchObject", "Sketch006")
body7.addObject(sketch7)
sketch7.AttachmentSupport = (doc.getObject("XY_Plane006"), [""])
sketch7.MapMode = "FlatFace"
sketch7.addGeometry(Part.ArcOfCircle(Part.Circle(Vector(0, 0, 0), Vector(0, 0, 1), 44), math.radians(90), math.radians(126)), False)
sketch7.addGeometry(Part.LineSegment(Vector(0, 44, 0), Vector(-14, 44, 0)), False)
sketch7.addGeometry(Part.LineSegment(Vector(-14, 44, 0), Vector(-26, 36, 0)), False)
sketch7.addConstraint(Sketcher.Constraint("Tangent", 0, 1, 1, 1))
sketch7.addConstraint(Sketcher.Constraint("Coincident", 1, 2, 2, 1))
sketch7.addConstraint(Sketcher.Constraint("Tangent", 2, 2, 0, 2))
sketch7.addConstraint(Sketcher.Constraint("Horizontal", 1))
sketch7.addConstraint(Sketcher.Constraint("Coincident", 0, 3, -1, 1))
sketch7.addConstraint(Sketcher.Constraint("Radius", 0, Q("1.75 in")))
sketch7.addConstraint(Sketcher.Constraint("Angle", 2, Q("-144 deg")))
sketch7.setExpression("Constraints[5]", "Params.sketch7_radius")
pad7 = doc.addObject("PartDesign::Pad", "Pad006")
body7.addObject(pad7)
pad7.Profile = sketch7
pad7.setExpression("Length", "Params.pad7_length")
body8 = doc.addObject("PartDesign::Body", "Body007")

# Sketch on XY plane
sketch8 = doc.addObject("Sketcher::SketchObject", "Sketch007")
body8.addObject(sketch8)
sketch8.AttachmentSupport = (doc.getObject("XY_Plane007"), [""])
sketch8.MapMode = "FlatFace"
sketch8.addGeometry(Part.ArcOfCircle(Part.Circle(Vector(0, 0, 0), Vector(0, 0, 1), 44), math.radians(54), math.radians(90)), False)
sketch8.addGeometry(Part.LineSegment(Vector(26, 36, 0), Vector(14, 44, 0)), False)
sketch8.addGeometry(Part.LineSegment(Vector(14, 44, 0), Vector(0, 44, 0)), False)
sketch8.addConstraint(Sketcher.Constraint("Tangent", 0, 1, 1, 1))
sketch8.addConstraint(Sketcher.Constraint("Coincident", 1, 2, 2, 1))
sketch8.addConstraint(Sketcher.Constraint("Tangent", 2, 2, 0, 2))
sketch8.addConstraint(Sketcher.Constraint("Horizontal", 2))
sketch8.addConstraint(Sketcher.Constraint("Coincident", 0, 3, -1, 1))
sketch8.addConstraint(Sketcher.Constraint("Radius", 0, Q("1.75 in")))
sketch8.addConstraint(Sketcher.Constraint("Angle", 1, Q("144 deg")))
sketch8.setExpression("Constraints[5]", "Params.sketch8_radius")
pad8 = doc.addObject("PartDesign::Pad", "Pad007")
body8.addObject(pad8)
pad8.Profile = sketch8
pad8.setExpression("Length", "Params.pad8_length")
body9 = doc.addObject("PartDesign::Body", "Body008")

# Sketch on XY plane
sketch9 = doc.addObject("Sketcher::SketchObject", "Sketch008")
body9.addObject(sketch9)
sketch9.AttachmentSupport = (doc.getObject("XY_Plane008"), [""])
sketch9.MapMode = "FlatFace"
sketch9.addGeometry(Part.ArcOfCircle(Part.Circle(Vector(0, 0, 0), Vector(0, 0, 1), 44), math.radians(18), math.radians(54)), False)
sketch9.addGeometry(Part.LineSegment(Vector(42, 14, 0), Vector(38, 27, 0)), False)
sketch9.addGeometry(Part.LineSegment(Vector(38, 27, 0), Vector(26, 36, 0)), False)
sketch9.addConstraint(Sketcher.Constraint("Tangent", 0, 1, 1, 1))
sketch9.addConstraint(Sketcher.Constraint("Coincident", 1, 2, 2, 1))
sketch9.addConstraint(Sketcher.Constraint("Tangent", 2, 2, 0, 2))
sketch9.addConstraint(Sketcher.Constraint("Coincident", 0, 3, -1, 1))
sketch9.addConstraint(Sketcher.Constraint("Radius", 0, Q("1.75 in")))
sketch9.addConstraint(Sketcher.Constraint("Angle", 1, Q("108 deg")))
sketch9.addConstraint(Sketcher.Constraint("Angle", 2, Q("144 deg")))
sketch9.setExpression("Constraints[4]", "Params.sketch9_radius")
pad9 = doc.addObject("PartDesign::Pad", "Pad008")
body9.addObject(pad9)
pad9.Profile = sketch9
pad9.setExpression("Length", "Params.pad9_length")
body10 = doc.addObject("PartDesign::Body", "Body009")

# Sketch on XY plane
sketch10 = doc.addObject("Sketcher::SketchObject", "Sketch009")
body10.addObject(sketch10)
sketch10.AttachmentSupport = (doc.getObject("XY_Plane009"), [""])
sketch10.MapMode = "FlatFace"
sketch10.addGeometry(Part.ArcOfCircle(Part.Circle(Vector(0, 0, 0), Vector(0, 0, 1), 44), math.radians(0), math.radians(18)), False)
sketch10.addGeometry(Part.ArcOfCircle(Part.Circle(Vector(0, 0, 0), Vector(0, 0, 1), 44), math.radians(-18), math.radians(0)), False)
sketch10.addGeometry(Part.LineSegment(Vector(42, -14, 0), Vector(47, 0, 0)), False)
sketch10.addGeometry(Part.LineSegment(Vector(47, 0, 0), Vector(42, 14, 0)), False)
sketch10.addConstraint(Sketcher.Constraint("Tangent", 0, 1, 1, 2))
sketch10.addConstraint(Sketcher.Constraint("Tangent", 1, 1, 2, 1))
sketch10.addConstraint(Sketcher.Constraint("Coincident", 2, 2, 3, 1))
sketch10.addConstraint(Sketcher.Constraint("Tangent", 3, 2, 0, 2))
sketch10.addConstraint(Sketcher.Constraint("Coincident", 0, 3, -1, 1))
sketch10.addConstraint(Sketcher.Constraint("Equal", 0, 1))
sketch10.addConstraint(Sketcher.Constraint("PointOnObject", 0, 1, -1))
sketch10.addConstraint(Sketcher.Constraint("PointOnObject", 2, 2, -1))
sketch10.addConstraint(Sketcher.Constraint("Radius", 0, Q("1.75 in")))
sketch10.addConstraint(Sketcher.Constraint("Angle", 2, Q("72 deg")))
sketch10.setExpression("Constraints[8]", "Params.sketch10_radius")
pad10 = doc.addObject("PartDesign::Pad", "Pad009")
body10.addObject(pad10)
pad10.Profile = sketch10
pad10.setExpression("Length", "Params.pad10_length")
body11 = doc.addObject("PartDesign::Body", "Body010")

# Sketch on XY plane
sketch11 = doc.addObject("Sketcher::SketchObject", "Sketch010")
body11.addObject(sketch11)
sketch11.AttachmentSupport = (doc.getObject("XY_Plane010"), [""])
sketch11.MapMode = "FlatFace"
sketch11.addGeometry(Part.LineSegment(Vector(38, -27, 0), Vector(42, -14, 0)), False)
sketch11.addGeometry(Part.ArcOfCircle(Part.Circle(Vector(0, 0, 0), Vector(0, 0, 1), 44), math.radians(-54), math.radians(-18)), False)
sketch11.addGeometry(Part.LineSegment(Vector(26, -36, 0), Vector(38, -27, 0)), False)
sketch11.addConstraint(Sketcher.Constraint("Tangent", 0, 2, 1, 2))
sketch11.addConstraint(Sketcher.Constraint("Tangent", 1, 1, 2, 1))
sketch11.addConstraint(Sketcher.Constraint("Coincident", 2, 2, 0, 1))
sketch11.addConstraint(Sketcher.Constraint("Coincident", 1, 3, -1, 1))
sketch11.addConstraint(Sketcher.Constraint("Radius", 1, Q("1.75 in")))
sketch11.addConstraint(Sketcher.Constraint("Angle", 0, Q("72 deg")))
sketch11.addConstraint(Sketcher.Constraint("Angle", 2, Q("36 deg")))
sketch11.setExpression("Constraints[4]", "Params.sketch11_radius")
pad11 = doc.addObject("PartDesign::Pad", "Pad010")
body11.addObject(pad11)
pad11.Profile = sketch11
pad11.setExpression("Length", "Params.pad11_length")
body12 = doc.addObject("PartDesign::Body", "Body011")

# Sketch on XY plane
sketch12 = doc.addObject("Sketcher::SketchObject", "Sketch011")
body12.addObject(sketch12)
sketch12.AttachmentSupport = (doc.getObject("XY_Plane011"), [""])
sketch12.MapMode = "FlatFace"
sketch12.addGeometry(Part.LineSegment(Vector(14, -44, 0), Vector(26, -36, 0)), False)
sketch12.addGeometry(Part.ArcOfCircle(Part.Circle(Vector(0, 0, 0), Vector(0, 0, 1), 44), math.radians(-90), math.radians(-54)), False)
sketch12.addGeometry(Part.LineSegment(Vector(0, -44, 0), Vector(14, -44, 0)), False)
sketch12.addConstraint(Sketcher.Constraint("Tangent", 0, 2, 1, 2))
sketch12.addConstraint(Sketcher.Constraint("Tangent", 1, 1, 2, 1))
sketch12.addConstraint(Sketcher.Constraint("Coincident", 2, 2, 0, 1))
sketch12.addConstraint(Sketcher.Constraint("Horizontal", 2))
sketch12.addConstraint(Sketcher.Constraint("Coincident", 1, 3, -1, 1))
sketch12.addConstraint(Sketcher.Constraint("Radius", 1, Q("1.75 in")))
sketch12.addConstraint(Sketcher.Constraint("Angle", 0, Q("36 deg")))
sketch12.setExpression("Constraints[5]", "Params.sketch12_radius")
pad12 = doc.addObject("PartDesign::Pad", "Pad011")
body12.addObject(pad12)
pad12.Profile = sketch12
pad12.setExpression("Length", "Params.pad12_length")
body13 = doc.addObject("PartDesign::Body", "Body012")

# Sketch on XY plane
sketch13 = doc.addObject("Sketcher::SketchObject", "Sketch012")
body13.addObject(sketch13)
sketch13.AttachmentSupport = (doc.getObject("XY_Plane012"), [""])
sketch13.MapMode = "FlatFace"
sketch13.addGeometry(Part.LineSegment(Vector(-14, -44, 0), Vector(0, -44, 0)), False)
sketch13.addGeometry(Part.ArcOfCircle(Part.Circle(Vector(0, 0, 0), Vector(0, 0, 1), 44), math.radians(-126), math.radians(-90)), False)
sketch13.addGeometry(Part.LineSegment(Vector(-26, -36, 0), Vector(-14, -44, 0)), False)
sketch13.addConstraint(Sketcher.Constraint("Tangent", 0, 2, 1, 2))
sketch13.addConstraint(Sketcher.Constraint("Tangent", 1, 1, 2, 1))
sketch13.addConstraint(Sketcher.Constraint("Coincident", 2, 2, 0, 1))
sketch13.addConstraint(Sketcher.Constraint("Horizontal", 0))
sketch13.addConstraint(Sketcher.Constraint("Coincident", 1, 3, -1, 1))
sketch13.addConstraint(Sketcher.Constraint("Radius", 1, Q("1.75 in")))
sketch13.addConstraint(Sketcher.Constraint("Angle", 2, Q("-36 deg")))
sketch13.setExpression("Constraints[5]", "Params.sketch13_radius")
pad13 = doc.addObject("PartDesign::Pad", "Pad012")
body13.addObject(pad13)
pad13.Profile = sketch13
pad13.setExpression("Length", "Params.pad13_length")
body14 = doc.addObject("PartDesign::Body", "Body013")

# Sketch on XY plane
sketch14 = doc.addObject("Sketcher::SketchObject", "Sketch013")
body14.addObject(sketch14)
sketch14.AttachmentSupport = (doc.getObject("XY_Plane013"), [""])
sketch14.MapMode = "FlatFace"
sketch14.addGeometry(Part.LineSegment(Vector(-38, -27, 0), Vector(-26, -36, 0)), False)
sketch14.addGeometry(Part.ArcOfCircle(Part.Circle(Vector(0, 0, 0), Vector(0, 0, 1), 44), math.radians(-162), math.radians(-126)), False)
sketch14.addGeometry(Part.LineSegment(Vector(-42, -14, 0), Vector(-38, -27, 0)), False)
sketch14.addConstraint(Sketcher.Constraint("Tangent", 0, 2, 1, 2))
sketch14.addConstraint(Sketcher.Constraint("Tangent", 1, 1, 2, 1))
sketch14.addConstraint(Sketcher.Constraint("Coincident", 2, 2, 0, 1))
sketch14.addConstraint(Sketcher.Constraint("Coincident", 1, 3, -1, 1))
sketch14.addConstraint(Sketcher.Constraint("Radius", 1, Q("1.75 in")))
sketch14.addConstraint(Sketcher.Constraint("Angle", 0, Q("-36 deg")))
sketch14.addConstraint(Sketcher.Constraint("Angle", 2, Q("-72 deg")))
sketch14.setExpression("Constraints[4]", "Params.sketch14_radius")
pad14 = doc.addObject("PartDesign::Pad", "Pad013")
body14.addObject(pad14)
pad14.Profile = sketch14
pad14.setExpression("Length", "Params.pad14_length")
body15 = doc.addObject("PartDesign::Body", "Body014")

# Sketch on XY plane
sketch15 = doc.addObject("Sketcher::SketchObject", "Sketch014")
body15.addObject(sketch15)
sketch15.AttachmentSupport = (doc.getObject("XY_Plane014"), [""])
sketch15.MapMode = "FlatFace"
sketch15.addGeometry(Part.ArcOfCircle(Part.Circle(Vector(0, 0, 0), Vector(0, 0, 1), 44), math.radians(162), math.radians(198)), False)
sketch15.addGeometry(Part.LineSegment(Vector(-42, 14, 0), Vector(-47, 0, 0)), False)
sketch15.addGeometry(Part.LineSegment(Vector(-47, 0, 0), Vector(-42, -14, 0)), False)
sketch15.addConstraint(Sketcher.Constraint("Tangent", 0, 1, 1, 1))
sketch15.addConstraint(Sketcher.Constraint("Coincident", 1, 2, 2, 1))
sketch15.addConstraint(Sketcher.Constraint("Tangent", 2, 2, 0, 2))
sketch15.addConstraint(Sketcher.Constraint("Coincident", 0, 3, -1, 1))
sketch15.addConstraint(Sketcher.Constraint("PointOnObject", 1, 2, -1))
sketch15.addConstraint(Sketcher.Constraint("Radius", 0, Q("1.75 in")))
sketch15.addConstraint(Sketcher.Constraint("Angle", 1, Q("-108 deg")))
sketch15.setExpression("Constraints[5]", "Params.sketch15_radius")
pad15 = doc.addObject("PartDesign::Pad", "Pad014")
body15.addObject(pad15)
pad15.Profile = sketch15
pad15.setExpression("Length", "Params.pad15_length")
body16 = doc.addObject("PartDesign::Body", "Body015")

# Sketch on XY plane
sketch16 = doc.addObject("Sketcher::SketchObject", "Sketch015")
body16.addObject(sketch16)
sketch16.AttachmentSupport = (doc.getObject("XY_Plane015"), [""])
sketch16.MapMode = "FlatFace"
sketch16.addGeometry(Part.ArcOfCircle(Part.Circle(Vector(0, 0, 0), Vector(0, 0, 1), 44), math.radians(126), math.radians(162)), False)
sketch16.addGeometry(Part.LineSegment(Vector(-26, 36, 0), Vector(-38, 27, 0)), False)
sketch16.addGeometry(Part.LineSegment(Vector(-38, 27, 0), Vector(-42, 14, 0)), False)
sketch16.addConstraint(Sketcher.Constraint("Tangent", 0, 1, 1, 1))
sketch16.addConstraint(Sketcher.Constraint("Coincident", 1, 2, 2, 1))
sketch16.addConstraint(Sketcher.Constraint("Tangent", 2, 2, 0, 2))
sketch16.addConstraint(Sketcher.Constraint("Coincident", 0, 3, -1, 1))
sketch16.addConstraint(Sketcher.Constraint("Radius", 0, Q("1.75 in")))
sketch16.addConstraint(Sketcher.Constraint("Angle", 1, Q("-144 deg")))
sketch16.addConstraint(Sketcher.Constraint("Angle", 2, Q("-108 deg")))
sketch16.setExpression("Constraints[4]", "Params.sketch16_radius")
pad16 = doc.addObject("PartDesign::Pad", "Pad015")
body16.addObject(pad16)
pad16.Profile = sketch16
pad16.setExpression("Length", "Params.pad16_length")

doc.recompute()
